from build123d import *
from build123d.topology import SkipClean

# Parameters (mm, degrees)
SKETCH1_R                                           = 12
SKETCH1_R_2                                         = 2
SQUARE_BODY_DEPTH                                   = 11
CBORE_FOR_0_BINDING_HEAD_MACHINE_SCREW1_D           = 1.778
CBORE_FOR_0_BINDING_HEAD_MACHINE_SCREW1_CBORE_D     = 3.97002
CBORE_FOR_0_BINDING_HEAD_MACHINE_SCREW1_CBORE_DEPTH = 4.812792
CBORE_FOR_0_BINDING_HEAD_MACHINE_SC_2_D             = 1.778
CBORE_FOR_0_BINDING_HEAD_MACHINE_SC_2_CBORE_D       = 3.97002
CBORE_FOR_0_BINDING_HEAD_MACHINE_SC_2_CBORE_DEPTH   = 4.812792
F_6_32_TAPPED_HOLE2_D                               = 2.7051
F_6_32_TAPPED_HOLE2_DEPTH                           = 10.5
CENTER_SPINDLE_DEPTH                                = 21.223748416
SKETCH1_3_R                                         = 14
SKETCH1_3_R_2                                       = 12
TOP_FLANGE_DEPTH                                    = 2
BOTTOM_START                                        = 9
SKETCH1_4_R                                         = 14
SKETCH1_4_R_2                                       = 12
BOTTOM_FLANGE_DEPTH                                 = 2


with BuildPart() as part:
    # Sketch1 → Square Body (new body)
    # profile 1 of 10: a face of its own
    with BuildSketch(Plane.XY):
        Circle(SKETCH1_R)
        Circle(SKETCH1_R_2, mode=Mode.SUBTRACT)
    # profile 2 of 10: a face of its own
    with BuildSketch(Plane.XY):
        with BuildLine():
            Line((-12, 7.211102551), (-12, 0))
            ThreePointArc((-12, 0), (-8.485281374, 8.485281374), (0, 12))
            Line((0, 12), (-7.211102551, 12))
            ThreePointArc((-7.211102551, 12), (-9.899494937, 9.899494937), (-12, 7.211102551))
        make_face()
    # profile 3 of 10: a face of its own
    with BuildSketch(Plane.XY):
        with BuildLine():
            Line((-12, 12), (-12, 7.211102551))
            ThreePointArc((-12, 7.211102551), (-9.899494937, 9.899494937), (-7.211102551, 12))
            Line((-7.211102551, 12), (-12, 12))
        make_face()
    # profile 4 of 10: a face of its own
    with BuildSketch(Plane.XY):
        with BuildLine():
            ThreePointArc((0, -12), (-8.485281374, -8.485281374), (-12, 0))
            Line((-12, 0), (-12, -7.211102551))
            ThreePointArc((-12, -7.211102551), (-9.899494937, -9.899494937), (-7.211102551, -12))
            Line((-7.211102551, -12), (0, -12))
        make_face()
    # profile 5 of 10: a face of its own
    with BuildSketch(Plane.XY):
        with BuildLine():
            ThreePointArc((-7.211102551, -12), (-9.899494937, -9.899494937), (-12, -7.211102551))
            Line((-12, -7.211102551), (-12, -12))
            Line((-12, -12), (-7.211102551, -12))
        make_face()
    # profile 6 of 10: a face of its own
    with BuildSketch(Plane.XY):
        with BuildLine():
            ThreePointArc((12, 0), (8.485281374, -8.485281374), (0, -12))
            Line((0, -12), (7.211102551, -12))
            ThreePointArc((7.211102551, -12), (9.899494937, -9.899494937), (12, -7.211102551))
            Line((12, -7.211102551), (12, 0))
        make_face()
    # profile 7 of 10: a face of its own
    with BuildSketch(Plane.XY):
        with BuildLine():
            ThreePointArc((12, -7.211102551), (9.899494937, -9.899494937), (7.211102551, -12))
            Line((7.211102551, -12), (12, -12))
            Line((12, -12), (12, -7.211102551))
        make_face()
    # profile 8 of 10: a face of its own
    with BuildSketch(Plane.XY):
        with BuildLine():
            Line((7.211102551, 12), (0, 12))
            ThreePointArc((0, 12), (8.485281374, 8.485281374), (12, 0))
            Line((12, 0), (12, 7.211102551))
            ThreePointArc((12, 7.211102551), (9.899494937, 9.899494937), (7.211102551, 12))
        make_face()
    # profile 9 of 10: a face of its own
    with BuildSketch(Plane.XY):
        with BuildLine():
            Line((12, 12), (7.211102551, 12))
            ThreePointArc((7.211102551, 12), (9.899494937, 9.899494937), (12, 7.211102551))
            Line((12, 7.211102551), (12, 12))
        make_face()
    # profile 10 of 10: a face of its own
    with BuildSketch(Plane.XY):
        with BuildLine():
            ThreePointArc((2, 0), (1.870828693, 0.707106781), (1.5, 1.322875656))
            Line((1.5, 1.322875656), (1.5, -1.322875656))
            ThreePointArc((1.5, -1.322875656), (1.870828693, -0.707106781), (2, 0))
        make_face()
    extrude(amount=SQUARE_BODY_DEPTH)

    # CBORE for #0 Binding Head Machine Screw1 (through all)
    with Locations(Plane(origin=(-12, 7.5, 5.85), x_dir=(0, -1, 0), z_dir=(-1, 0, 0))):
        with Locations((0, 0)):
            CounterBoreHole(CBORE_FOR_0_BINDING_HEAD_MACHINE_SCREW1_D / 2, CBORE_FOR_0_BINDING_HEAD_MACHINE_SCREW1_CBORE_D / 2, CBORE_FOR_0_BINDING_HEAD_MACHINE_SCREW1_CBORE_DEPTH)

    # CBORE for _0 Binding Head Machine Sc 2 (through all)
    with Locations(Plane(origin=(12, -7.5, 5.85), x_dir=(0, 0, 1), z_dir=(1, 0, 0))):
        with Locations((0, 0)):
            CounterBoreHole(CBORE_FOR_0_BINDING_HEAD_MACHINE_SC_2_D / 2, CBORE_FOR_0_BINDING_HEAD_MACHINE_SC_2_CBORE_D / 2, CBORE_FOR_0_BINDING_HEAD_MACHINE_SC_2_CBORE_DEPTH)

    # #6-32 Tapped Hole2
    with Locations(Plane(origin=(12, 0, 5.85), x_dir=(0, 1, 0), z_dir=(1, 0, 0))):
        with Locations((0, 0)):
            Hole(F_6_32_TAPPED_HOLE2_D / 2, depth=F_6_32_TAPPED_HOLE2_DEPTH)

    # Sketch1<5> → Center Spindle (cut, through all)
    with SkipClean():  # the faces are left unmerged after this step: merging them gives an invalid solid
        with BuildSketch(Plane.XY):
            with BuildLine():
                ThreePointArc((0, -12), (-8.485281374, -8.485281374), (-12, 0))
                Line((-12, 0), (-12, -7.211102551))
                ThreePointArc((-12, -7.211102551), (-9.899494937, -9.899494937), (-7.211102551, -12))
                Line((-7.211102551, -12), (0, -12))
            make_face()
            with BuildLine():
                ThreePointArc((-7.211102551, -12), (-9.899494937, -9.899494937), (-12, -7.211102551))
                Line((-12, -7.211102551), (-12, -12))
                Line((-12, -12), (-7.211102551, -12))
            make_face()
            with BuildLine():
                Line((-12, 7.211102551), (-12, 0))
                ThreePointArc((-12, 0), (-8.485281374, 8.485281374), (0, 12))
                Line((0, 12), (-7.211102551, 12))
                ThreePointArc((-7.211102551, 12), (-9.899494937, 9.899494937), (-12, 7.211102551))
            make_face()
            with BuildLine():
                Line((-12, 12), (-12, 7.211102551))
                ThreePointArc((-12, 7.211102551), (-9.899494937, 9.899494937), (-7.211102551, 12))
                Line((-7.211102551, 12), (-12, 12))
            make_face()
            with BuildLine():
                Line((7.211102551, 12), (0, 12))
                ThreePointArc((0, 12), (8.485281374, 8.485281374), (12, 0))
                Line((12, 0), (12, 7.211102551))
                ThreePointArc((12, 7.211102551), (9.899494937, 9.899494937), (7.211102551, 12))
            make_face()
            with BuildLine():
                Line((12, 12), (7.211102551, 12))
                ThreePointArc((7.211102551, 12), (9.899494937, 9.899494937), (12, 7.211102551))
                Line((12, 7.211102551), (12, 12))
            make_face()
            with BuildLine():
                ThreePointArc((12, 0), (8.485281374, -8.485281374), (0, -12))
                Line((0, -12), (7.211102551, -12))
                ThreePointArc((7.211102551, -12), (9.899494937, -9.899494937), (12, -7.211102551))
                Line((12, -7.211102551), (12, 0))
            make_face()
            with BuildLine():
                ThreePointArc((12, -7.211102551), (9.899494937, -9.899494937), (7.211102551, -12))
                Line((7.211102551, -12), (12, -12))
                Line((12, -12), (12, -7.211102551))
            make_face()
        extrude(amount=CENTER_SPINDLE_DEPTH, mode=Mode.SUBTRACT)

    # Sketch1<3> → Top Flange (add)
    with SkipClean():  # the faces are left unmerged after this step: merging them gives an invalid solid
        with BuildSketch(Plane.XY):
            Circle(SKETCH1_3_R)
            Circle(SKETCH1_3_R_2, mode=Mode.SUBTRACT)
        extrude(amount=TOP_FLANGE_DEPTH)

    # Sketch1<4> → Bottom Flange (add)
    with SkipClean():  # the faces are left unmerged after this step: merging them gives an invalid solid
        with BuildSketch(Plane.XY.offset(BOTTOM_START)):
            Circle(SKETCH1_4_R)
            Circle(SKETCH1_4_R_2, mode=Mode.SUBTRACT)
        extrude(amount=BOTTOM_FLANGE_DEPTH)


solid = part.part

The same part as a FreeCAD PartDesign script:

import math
import FreeCAD as App
import Part
import Sketcher
Q = App.Units.Quantity

doc = App.newDocument("Part")
body = doc.addObject("PartDesign::Body", "Body")

# Sketch on XY plane
sketch1 = doc.addObject("Sketcher::SketchObject", "Sketch")
body.addObject(sketch1)
sketch1.AttachmentSupport = (doc.XY_Plane, [""])
sketch1.MapMode = "FlatFace"
sketch1.addGeometry([
    Part.LineSegment(App.Vector(-12, 12, 0), App.Vector(-12, -12, 0)),  # 0
    Part.LineSegment(App.Vector(-12, -12, 0), App.Vector(12, -12, 0)),  # 1
    Part.LineSegment(App.Vector(12, -12, 0), App.Vector(12, 12, 0)),  # 2
    Part.LineSegment(App.Vector(12, 12, 0), App.Vector(-12, 12, 0)),  # 3
    Part.ArcOfCircle(Part.Circle(App.Vector(0, 0, 0), App.Vector(0, 0, 1), 2), math.radians(41.409622), math.radians(318.590378)),  # 4
    Part.LineSegment(App.Vector(1.5, 1.322876, 0), App.Vector(1.5, -1.322876, 0)),  # 5
], False)
sketch1.addConstraint([
    Sketcher.Constraint("Coincident", 0, 2, 1, 1),
    Sketcher.Constraint("Coincident", 1, 2, 2, 1),
    Sketcher.Constraint("Coincident", 2, 2, 3, 1),
    Sketcher.Constraint("Coincident", 3, 2, 0, 1),
    Sketcher.Constraint("Coincident", 4, 1, 5, 1),
    Sketcher.Constraint("Coincident", 5, 2, 4, 2),
    Sketcher.Constraint("Vertical", 0),
    Sketcher.Constraint("Horizontal", 1),
    Sketcher.Constraint("Vertical", 2),
    Sketcher.Constraint("Horizontal", 3),
    Sketcher.Constraint("Vertical", 5),
    Sketcher.Constraint("Coincident", 4, 3, -1, 1),
    Sketcher.Constraint("Symmetric", 0, 2, 2, 2, -1, 1),
    Sketcher.Constraint("Equal", 3, 0),
    Sketcher.Constraint("Radius", 4, Q("2 mm")),
    Sketcher.Constraint("DistanceX", 1, 1, 1, 2, Q("24 mm")),
    Sketcher.Constraint("DistanceX", -1, 1, 4, 1, Q("1.5 mm")),
])
pad1 = doc.addObject("PartDesign::Pad", "Pad")
body.addObject(pad1)
pad1.Profile = sketch1
pad1.Length = 11

# Sketch on YZ plane
sketch2 = doc.addObject("Sketcher::SketchObject", "Sketch001")
body.addObject(sketch2)
sketch2.AttachmentSupport = (doc.YZ_Plane, [""])
sketch2.MapMode = "FlatFace"
sketch2.AttachmentOffset = App.Placement(App.Vector(0, 0, -12), App.Rotation())
sketch2.addGeometry(Part.Circle(App.Vector(7.5, 5.85, 0), App.Vector(0, 0, 1), 0.889), False)
sketch2.addConstraint([
    Sketcher.Constraint("Diameter", 0, Q("1.778 mm")),
    Sketcher.Constraint("DistanceX", -1, 1, 0, 3, Q("7.5 mm")),
    Sketcher.Constraint("DistanceY", -1, 1, 0, 3, Q("5.85 mm")),
])
doc.recompute()
hole = doc.addObject("PartDesign::Hole", "Hole")
body.addObject(hole)
hole.Profile = sketch2
hole.ThreadType = "None"
hole.Diameter = 1.778
hole.DepthType = "ThroughAll"
hole.HoleCutType = "Counterbore"
hole.HoleCutDiameter = 3.97002
hole.HoleCutDepth = 4.812792
hole.Reversed = True

# Sketch on YZ plane
sketch3 = doc.addObject("Sketcher::SketchObject", "Sketch002")
body.addObject(sketch3)
sketch3.AttachmentSupport = (doc.YZ_Plane, [""])
sketch3.MapMode = "FlatFace"
sketch3.AttachmentOffset = App.Placement(App.Vector(0, 0, 12), App.Rotation())
sketch3.addGeometry(Part.Circle(App.Vector(-7.5, 5.85, 0), App.Vector(0, 0, 1), 0.889), False)
sketch3.addConstraint([
    Sketcher.Constraint("Diameter", 0, Q("1.778 mm")),
    Sketcher.Constraint("DistanceX", 0, 3, -1, 1, Q("7.5 mm")),
    Sketcher.Constraint("DistanceY", -1, 1, 0, 3, Q("5.85 mm")),
])
doc.recompute()
hole2 = doc.addObject("PartDesign::Hole", "Hole001")
body.addObject(hole2)
hole2.Profile = sketch3
hole2.ThreadType = "None"
hole2.Diameter = 1.778
hole2.DepthType = "ThroughAll"
hole2.HoleCutType = "Counterbore"
hole2.HoleCutDiameter = 3.97002
hole2.HoleCutDepth = 4.812792

# Sketch on YZ plane
sketch4 = doc.addObject("Sketcher::SketchObject", "Sketch003")
body.addObject(sketch4)
sketch4.AttachmentSupport = (doc.YZ_Plane, [""])
sketch4.MapMode = "FlatFace"
sketch4.AttachmentOffset = App.Placement(App.Vector(0, 0, 12), App.Rotation())
sketch4.addGeometry(Part.Circle(App.Vector(0, 5.85, 0), App.Vector(0, 0, 1), 1.35255), False)
sketch4.addConstraint([
    Sketcher.Constraint("PointOnObject", 0, 3, -2),
    Sketcher.Constraint("Diameter", 0, Q("2.7051 mm")),
    Sketcher.Constraint("DistanceY", -1, 1, 0, 3, Q("5.85 mm")),
])
doc.recompute()
hole3 = doc.addObject("PartDesign::Hole", "Hole002")
body.addObject(hole3)
hole3.Profile = sketch4
hole3.ThreadType = "None"
hole3.Diameter = 2.7051
hole3.DepthType = "Dimension"
hole3.Depth = 10.5
hole3.DrillPoint = "Flat"

# Sketch on XY plane
sketch5 = doc.addObject("Sketcher::SketchObject", "Sketch004")
body.addObject(sketch5)
sketch5.AttachmentSupport = (doc.XY_Plane, [""])
sketch5.MapMode = "FlatFace"
sketch5.addGeometry([
    Part.ArcOfCircle(Part.Circle(App.Vector(0, 0, 0), App.Vector(0, 0, 1), 12), math.radians(-180), math.radians(-90)),  # 0
    Part.LineSegment(App.Vector(-12, 0, 0), App.Vector(-12, -7.211103, 0)),  # 1
    Part.ArcOfCircle(Part.Circle(App.Vector(0, 0, 0), App.Vector(0, 0, 1), 14), math.radians(-148.997281), math.radians(-121.002719)),  # 2
    Part.LineSegment(App.Vector(-7.211103, -12, 0), App.Vector(0, -12, 0)),  # 3
    Part.ArcOfCircle(Part.Circle(App.Vector(0, 0, 0), App.Vector(0, 0, 1), 14), math.radians(-148.997281), math.radians(-121.002719)),  # 4
    Part.LineSegment(App.Vector(-12, -7.211103, 0), App.Vector(-12, -12, 0)),  # 5
    Part.LineSegment(App.Vector(-12, -12, 0), App.Vector(-7.211103, -12, 0)),  # 6
    Part.LineSegment(App.Vector(-12, 7.211103, 0), App.Vector(-12, 0, 0)),  # 7
    Part.ArcOfCircle(Part.Circle(App.Vector(0, 0, 0), App.Vector(0, 0, 1), 12), math.radians(90), math.radians(180)),  # 8
    Part.LineSegment(App.Vector(0, 12, 0), App.Vector(-7.211103, 12, 0)),  # 9
    Part.ArcOfCircle(Part.Circle(App.Vector(0, 0, 0), App.Vector(0, 0, 1), 14), math.radians(121.002719), math.radians(148.997281)),  # 10
    Part.LineSegment(App.Vector(-12, 12, 0), App.Vector(-12, 7.211103, 0)),  # 11
    Part.ArcOfCircle(Part.Circle(App.Vector(0, 0, 0), App.Vector(0, 0, 1), 14), math.radians(121.002719), math.radians(148.997281)),  # 12
    Part.LineSegment(App.Vector(-7.211103, 12, 0), App.Vector(-12, 12, 0)),  # 13
    Part.LineSegment(App.Vector(7.211103, 12, 0), App.Vector(0, 12, 0)),  # 14
    Part.ArcOfCircle(Part.Circle(App.Vector(0, 0, 0), App.Vector(0, 0, 1), 12), math.radians(0), math.radians(90)),  # 15
    Part.LineSegment(App.Vector(12, 0, 0), App.Vector(12, 7.211103, 0)),  # 16
    Part.ArcOfCircle(Part.Circle(App.Vector(0, 0, 0), App.Vector(0, 0, 1), 14), math.radians(31.002719), math.radians(58.997281)),  # 17
    Part.LineSegment(App.Vector(12, 12, 0), App.Vector(7.211103, 12, 0)),  # 18
    Part.ArcOfCircle(Part.Circle(App.Vector(0, 0, 0), App.Vector(0, 0, 1), 14), math.radians(31.002719), math.radians(58.997281)),  # 19
    Part.LineSegment(App.Vector(12, 7.211103, 0), App.Vector(12, 12, 0)),  # 20
    Part.ArcOfCircle(Part.Circle(App.Vector(0, 0, 0), App.Vector(0, 0, 1), 12), math.radians(-90), math.radians(0)),  # 21
    Part.LineSegment(App.Vector(0, -12, 0), App.Vector(7.211103, -12, 0)),  # 22
    Part.ArcOfCircle(Part.Circle(App.Vector(0, 0, 0), App.Vector(0, 0, 1), 14), math.radians(-58.997281), math.radians(-31.002719)),  # 23
    Part.LineSegment(App.Vector(12, -7.211103, 0), App.Vector(12, 0, 0)),  # 24
    Part.ArcOfCircle(Part.Circle(App.Vector(0, 0, 0), App.Vector(0, 0, 1), 14), math.radians(-58.997281), math.radians(-31.002719)),  # 25
    Part.LineSegment(App.Vector(7.211103, -12, 0), App.Vector(12, -12, 0)),  # 26
    Part.LineSegment(App.Vector(12, -12, 0), App.Vector(12, -7.211103, 0)),  # 27
], False)
sketch5.addConstraint([
    Sketcher.Constraint("Tangent", 0, 1, 1, 1),
    Sketcher.Constraint("Coincident", 1, 2, 2, 1),
    Sketcher.Constraint("Coincident", 2, 2, 3, 1),
    Sketcher.Constraint("Tangent", 3, 2, 0, 2),
    Sketcher.Constraint("Coincident", 4, 1, 5, 1),
    Sketcher.Constraint("Coincident", 5, 2, 6, 1),
    Sketcher.Constraint("Coincident", 6, 2, 4, 2),
    Sketcher.Constraint("Tangent", 7, 2, 8, 2),
    Sketcher.Constraint("Tangent", 8, 1, 9, 1),
    Sketcher.Constraint("Coincident", 9, 2, 10, 1),
    Sketcher.Constraint("Coincident", 10, 2, 7, 1),
    Sketcher.Constraint("Coincident", 11, 2, 12, 2),
    Sketcher.Constraint("Coincident", 12, 1, 13, 1),
    Sketcher.Constraint("Coincident", 13, 2, 11, 1),
    Sketcher.Constraint("Tangent", 14, 2, 15, 2),
    Sketcher.Constraint("Tangent", 15, 1, 16, 1),
    Sketcher.Constraint("Coincident", 16, 2, 17, 1),
    Sketcher.Constraint("Coincident", 17, 2, 14, 1),
    Sketcher.Constraint("Coincident", 18, 2, 19, 2),
    Sketcher.Constraint("Coincident", 19, 1, 20, 1),
    Sketcher.Constraint("Coincident", 20, 2, 18, 1),
    Sketcher.Constraint("Tangent", 21, 1, 22, 1),
    Sketcher.Constraint("Coincident", 22, 2, 23, 1),
    Sketcher.Constraint("Coincident", 23, 2, 24, 1),
    Sketcher.Constraint("Tangent", 24, 2, 21, 2),
    Sketcher.Constraint("Coincident", 25, 1, 26, 1),
    Sketcher.Constraint("Coincident", 26, 2, 27, 1),
    Sketcher.Constraint("Coincident", 27, 2, 25, 2),
    Sketcher.Constraint("Vertical", 1),
    Sketcher.Constraint("Horizontal", 3),
    Sketcher.Constraint("Vertical", 5),
    Sketcher.Constraint("Horizontal", 6),
    Sketcher.Constraint("Vertical", 7),
    Sketcher.Constraint("Horizontal", 9),
    Sketcher.Constraint("Vertical", 11),
    Sketcher.Constraint("Horizontal", 13),
    Sketcher.Constraint("Horizontal", 14),
    Sketcher.Constraint("Vertical", 16),
    Sketcher.Constraint("Horizontal", 18),
    Sketcher.Constraint("Vertical", 20),
    Sketcher.Constraint("Horizontal", 22),
    Sketcher.Constraint("Vertical", 24),
    Sketcher.Constraint("Horizontal", 26),
    Sketcher.Constraint("Vertical", 27),
    Sketcher.Constraint("Coincident", 0, 3, -1, 1),
    Sketcher.Constraint("Coincident", 2, 3, -1, 1),
    Sketcher.Constraint("Coincident", 4, 3, -1, 1),
    Sketcher.Constraint("Coincident", 8, 3, -1, 1),
    Sketcher.Constraint("Coincident", 10, 3, -1, 1),
    Sketcher.Constraint("Coincident", 12, 3, -1, 1),
    Sketcher.Constraint("Coincident", 15, 3, -1, 1),
    Sketcher.Constraint("Coincident", 17, 3, -1, 1),
    Sketcher.Constraint("Coincident", 19, 3, -1, 1),
    Sketcher.Constraint("Coincident", 21, 3, -1, 1),
    Sketcher.Constraint("Coincident", 23, 3, -1, 1),
    Sketcher.Constraint("Coincident", 25, 3, -1, 1),
    Sketcher.Constraint("Coincident", 4, 1, 1, 2),
    Sketcher.Constraint("Coincident", 11, 2, 10, 2),
    Sketcher.Constraint("Coincident", 18, 2, 17, 2),
    Sketcher.Constraint("Coincident", 25, 1, 22, 2),
    Sketcher.Constraint("Equal", 0, 8),
    Sketcher.Constraint("Equal", 4, 10),
    Sketcher.Constraint("Equal", 8, 15),
    Sketcher.Constraint("Equal", 12, 17),
    Sketcher.Constraint("Equal", 15, 21),
    Sketcher.Constraint("Equal", 19, 23),
    Sketcher.Constraint("Symmetric", 5, 2, 20, 2, -1, 1),
    Sketcher.Constraint("Symmetric", 13, 2, 26, 2, -1, 1),
    Sketcher.Constraint("Radius", 0, Q("12 mm")),
    Sketcher.Constraint("Radius", 2, Q("14 mm")),
])
pocket1 = doc.addObject("PartDesign::Pocket", "Pocket")
body.addObject(pocket1)
pocket1.Profile = sketch5
pocket1.Type = "ThroughAll"
pocket1.Reversed = True

# Sketch on XY plane
sketch6 = doc.addObject("Sketcher::SketchObject", "Sketch005")
body.addObject(sketch6)
sketch6.AttachmentSupport = (doc.XY_Plane, [""])
sketch6.MapMode = "FlatFace"
sketch6.addGeometry([
    Part.Circle(App.Vector(0, 0, 0), App.Vector(0, 0, 1), 14),
    Part.Circle(App.Vector(0, 0, 0), App.Vector(0, 0, 1), 12),
], False)
sketch6.addConstraint([
    Sketcher.Constraint("Coincident", 0, 3, -1, 1),
    Sketcher.Constraint("Coincident", 1, 3, -1, 1),
    Sketcher.Constraint("Diameter", 0, Q("28 mm")),
    Sketcher.Constraint("Diameter", 1, Q("24 mm")),
])
pad2 = doc.addObject("PartDesign::Pad", "Pad001")
body.addObject(pad2)
pad2.Profile = sketch6
pad2.Length = 2

# Sketch on XY plane
sketch7 = doc.addObject("Sketcher::SketchObject", "Sketch006")
body.addObject(sketch7)
sketch7.AttachmentSupport = (doc.XY_Plane, [""])
sketch7.MapMode = "FlatFace"
sketch7.AttachmentOffset = App.Placement(App.Vector(0, 0, 9), App.Rotation())
sketch7.addGeometry([
    Part.Circle(App.Vector(0, 0, 0), App.Vector(0, 0, 1), 14),
    Part.Circle(App.Vector(0, 0, 0), App.Vector(0, 0, 1), 12),
], False)
sketch7.addConstraint([
    Sketcher.Constraint("Coincident", 0, 3, -1, 1),
    Sketcher.Constraint("Coincident", 1, 3, -1, 1),
    Sketcher.Constraint("Diameter", 0, Q("28 mm")),
    Sketcher.Constraint("Diameter", 1, Q("24 mm")),
])
pad3 = doc.addObject("PartDesign::Pad", "Pad002")
body.addObject(pad3)
pad3.Profile = sketch7
pad3.Length = 2

doc.recompute()
